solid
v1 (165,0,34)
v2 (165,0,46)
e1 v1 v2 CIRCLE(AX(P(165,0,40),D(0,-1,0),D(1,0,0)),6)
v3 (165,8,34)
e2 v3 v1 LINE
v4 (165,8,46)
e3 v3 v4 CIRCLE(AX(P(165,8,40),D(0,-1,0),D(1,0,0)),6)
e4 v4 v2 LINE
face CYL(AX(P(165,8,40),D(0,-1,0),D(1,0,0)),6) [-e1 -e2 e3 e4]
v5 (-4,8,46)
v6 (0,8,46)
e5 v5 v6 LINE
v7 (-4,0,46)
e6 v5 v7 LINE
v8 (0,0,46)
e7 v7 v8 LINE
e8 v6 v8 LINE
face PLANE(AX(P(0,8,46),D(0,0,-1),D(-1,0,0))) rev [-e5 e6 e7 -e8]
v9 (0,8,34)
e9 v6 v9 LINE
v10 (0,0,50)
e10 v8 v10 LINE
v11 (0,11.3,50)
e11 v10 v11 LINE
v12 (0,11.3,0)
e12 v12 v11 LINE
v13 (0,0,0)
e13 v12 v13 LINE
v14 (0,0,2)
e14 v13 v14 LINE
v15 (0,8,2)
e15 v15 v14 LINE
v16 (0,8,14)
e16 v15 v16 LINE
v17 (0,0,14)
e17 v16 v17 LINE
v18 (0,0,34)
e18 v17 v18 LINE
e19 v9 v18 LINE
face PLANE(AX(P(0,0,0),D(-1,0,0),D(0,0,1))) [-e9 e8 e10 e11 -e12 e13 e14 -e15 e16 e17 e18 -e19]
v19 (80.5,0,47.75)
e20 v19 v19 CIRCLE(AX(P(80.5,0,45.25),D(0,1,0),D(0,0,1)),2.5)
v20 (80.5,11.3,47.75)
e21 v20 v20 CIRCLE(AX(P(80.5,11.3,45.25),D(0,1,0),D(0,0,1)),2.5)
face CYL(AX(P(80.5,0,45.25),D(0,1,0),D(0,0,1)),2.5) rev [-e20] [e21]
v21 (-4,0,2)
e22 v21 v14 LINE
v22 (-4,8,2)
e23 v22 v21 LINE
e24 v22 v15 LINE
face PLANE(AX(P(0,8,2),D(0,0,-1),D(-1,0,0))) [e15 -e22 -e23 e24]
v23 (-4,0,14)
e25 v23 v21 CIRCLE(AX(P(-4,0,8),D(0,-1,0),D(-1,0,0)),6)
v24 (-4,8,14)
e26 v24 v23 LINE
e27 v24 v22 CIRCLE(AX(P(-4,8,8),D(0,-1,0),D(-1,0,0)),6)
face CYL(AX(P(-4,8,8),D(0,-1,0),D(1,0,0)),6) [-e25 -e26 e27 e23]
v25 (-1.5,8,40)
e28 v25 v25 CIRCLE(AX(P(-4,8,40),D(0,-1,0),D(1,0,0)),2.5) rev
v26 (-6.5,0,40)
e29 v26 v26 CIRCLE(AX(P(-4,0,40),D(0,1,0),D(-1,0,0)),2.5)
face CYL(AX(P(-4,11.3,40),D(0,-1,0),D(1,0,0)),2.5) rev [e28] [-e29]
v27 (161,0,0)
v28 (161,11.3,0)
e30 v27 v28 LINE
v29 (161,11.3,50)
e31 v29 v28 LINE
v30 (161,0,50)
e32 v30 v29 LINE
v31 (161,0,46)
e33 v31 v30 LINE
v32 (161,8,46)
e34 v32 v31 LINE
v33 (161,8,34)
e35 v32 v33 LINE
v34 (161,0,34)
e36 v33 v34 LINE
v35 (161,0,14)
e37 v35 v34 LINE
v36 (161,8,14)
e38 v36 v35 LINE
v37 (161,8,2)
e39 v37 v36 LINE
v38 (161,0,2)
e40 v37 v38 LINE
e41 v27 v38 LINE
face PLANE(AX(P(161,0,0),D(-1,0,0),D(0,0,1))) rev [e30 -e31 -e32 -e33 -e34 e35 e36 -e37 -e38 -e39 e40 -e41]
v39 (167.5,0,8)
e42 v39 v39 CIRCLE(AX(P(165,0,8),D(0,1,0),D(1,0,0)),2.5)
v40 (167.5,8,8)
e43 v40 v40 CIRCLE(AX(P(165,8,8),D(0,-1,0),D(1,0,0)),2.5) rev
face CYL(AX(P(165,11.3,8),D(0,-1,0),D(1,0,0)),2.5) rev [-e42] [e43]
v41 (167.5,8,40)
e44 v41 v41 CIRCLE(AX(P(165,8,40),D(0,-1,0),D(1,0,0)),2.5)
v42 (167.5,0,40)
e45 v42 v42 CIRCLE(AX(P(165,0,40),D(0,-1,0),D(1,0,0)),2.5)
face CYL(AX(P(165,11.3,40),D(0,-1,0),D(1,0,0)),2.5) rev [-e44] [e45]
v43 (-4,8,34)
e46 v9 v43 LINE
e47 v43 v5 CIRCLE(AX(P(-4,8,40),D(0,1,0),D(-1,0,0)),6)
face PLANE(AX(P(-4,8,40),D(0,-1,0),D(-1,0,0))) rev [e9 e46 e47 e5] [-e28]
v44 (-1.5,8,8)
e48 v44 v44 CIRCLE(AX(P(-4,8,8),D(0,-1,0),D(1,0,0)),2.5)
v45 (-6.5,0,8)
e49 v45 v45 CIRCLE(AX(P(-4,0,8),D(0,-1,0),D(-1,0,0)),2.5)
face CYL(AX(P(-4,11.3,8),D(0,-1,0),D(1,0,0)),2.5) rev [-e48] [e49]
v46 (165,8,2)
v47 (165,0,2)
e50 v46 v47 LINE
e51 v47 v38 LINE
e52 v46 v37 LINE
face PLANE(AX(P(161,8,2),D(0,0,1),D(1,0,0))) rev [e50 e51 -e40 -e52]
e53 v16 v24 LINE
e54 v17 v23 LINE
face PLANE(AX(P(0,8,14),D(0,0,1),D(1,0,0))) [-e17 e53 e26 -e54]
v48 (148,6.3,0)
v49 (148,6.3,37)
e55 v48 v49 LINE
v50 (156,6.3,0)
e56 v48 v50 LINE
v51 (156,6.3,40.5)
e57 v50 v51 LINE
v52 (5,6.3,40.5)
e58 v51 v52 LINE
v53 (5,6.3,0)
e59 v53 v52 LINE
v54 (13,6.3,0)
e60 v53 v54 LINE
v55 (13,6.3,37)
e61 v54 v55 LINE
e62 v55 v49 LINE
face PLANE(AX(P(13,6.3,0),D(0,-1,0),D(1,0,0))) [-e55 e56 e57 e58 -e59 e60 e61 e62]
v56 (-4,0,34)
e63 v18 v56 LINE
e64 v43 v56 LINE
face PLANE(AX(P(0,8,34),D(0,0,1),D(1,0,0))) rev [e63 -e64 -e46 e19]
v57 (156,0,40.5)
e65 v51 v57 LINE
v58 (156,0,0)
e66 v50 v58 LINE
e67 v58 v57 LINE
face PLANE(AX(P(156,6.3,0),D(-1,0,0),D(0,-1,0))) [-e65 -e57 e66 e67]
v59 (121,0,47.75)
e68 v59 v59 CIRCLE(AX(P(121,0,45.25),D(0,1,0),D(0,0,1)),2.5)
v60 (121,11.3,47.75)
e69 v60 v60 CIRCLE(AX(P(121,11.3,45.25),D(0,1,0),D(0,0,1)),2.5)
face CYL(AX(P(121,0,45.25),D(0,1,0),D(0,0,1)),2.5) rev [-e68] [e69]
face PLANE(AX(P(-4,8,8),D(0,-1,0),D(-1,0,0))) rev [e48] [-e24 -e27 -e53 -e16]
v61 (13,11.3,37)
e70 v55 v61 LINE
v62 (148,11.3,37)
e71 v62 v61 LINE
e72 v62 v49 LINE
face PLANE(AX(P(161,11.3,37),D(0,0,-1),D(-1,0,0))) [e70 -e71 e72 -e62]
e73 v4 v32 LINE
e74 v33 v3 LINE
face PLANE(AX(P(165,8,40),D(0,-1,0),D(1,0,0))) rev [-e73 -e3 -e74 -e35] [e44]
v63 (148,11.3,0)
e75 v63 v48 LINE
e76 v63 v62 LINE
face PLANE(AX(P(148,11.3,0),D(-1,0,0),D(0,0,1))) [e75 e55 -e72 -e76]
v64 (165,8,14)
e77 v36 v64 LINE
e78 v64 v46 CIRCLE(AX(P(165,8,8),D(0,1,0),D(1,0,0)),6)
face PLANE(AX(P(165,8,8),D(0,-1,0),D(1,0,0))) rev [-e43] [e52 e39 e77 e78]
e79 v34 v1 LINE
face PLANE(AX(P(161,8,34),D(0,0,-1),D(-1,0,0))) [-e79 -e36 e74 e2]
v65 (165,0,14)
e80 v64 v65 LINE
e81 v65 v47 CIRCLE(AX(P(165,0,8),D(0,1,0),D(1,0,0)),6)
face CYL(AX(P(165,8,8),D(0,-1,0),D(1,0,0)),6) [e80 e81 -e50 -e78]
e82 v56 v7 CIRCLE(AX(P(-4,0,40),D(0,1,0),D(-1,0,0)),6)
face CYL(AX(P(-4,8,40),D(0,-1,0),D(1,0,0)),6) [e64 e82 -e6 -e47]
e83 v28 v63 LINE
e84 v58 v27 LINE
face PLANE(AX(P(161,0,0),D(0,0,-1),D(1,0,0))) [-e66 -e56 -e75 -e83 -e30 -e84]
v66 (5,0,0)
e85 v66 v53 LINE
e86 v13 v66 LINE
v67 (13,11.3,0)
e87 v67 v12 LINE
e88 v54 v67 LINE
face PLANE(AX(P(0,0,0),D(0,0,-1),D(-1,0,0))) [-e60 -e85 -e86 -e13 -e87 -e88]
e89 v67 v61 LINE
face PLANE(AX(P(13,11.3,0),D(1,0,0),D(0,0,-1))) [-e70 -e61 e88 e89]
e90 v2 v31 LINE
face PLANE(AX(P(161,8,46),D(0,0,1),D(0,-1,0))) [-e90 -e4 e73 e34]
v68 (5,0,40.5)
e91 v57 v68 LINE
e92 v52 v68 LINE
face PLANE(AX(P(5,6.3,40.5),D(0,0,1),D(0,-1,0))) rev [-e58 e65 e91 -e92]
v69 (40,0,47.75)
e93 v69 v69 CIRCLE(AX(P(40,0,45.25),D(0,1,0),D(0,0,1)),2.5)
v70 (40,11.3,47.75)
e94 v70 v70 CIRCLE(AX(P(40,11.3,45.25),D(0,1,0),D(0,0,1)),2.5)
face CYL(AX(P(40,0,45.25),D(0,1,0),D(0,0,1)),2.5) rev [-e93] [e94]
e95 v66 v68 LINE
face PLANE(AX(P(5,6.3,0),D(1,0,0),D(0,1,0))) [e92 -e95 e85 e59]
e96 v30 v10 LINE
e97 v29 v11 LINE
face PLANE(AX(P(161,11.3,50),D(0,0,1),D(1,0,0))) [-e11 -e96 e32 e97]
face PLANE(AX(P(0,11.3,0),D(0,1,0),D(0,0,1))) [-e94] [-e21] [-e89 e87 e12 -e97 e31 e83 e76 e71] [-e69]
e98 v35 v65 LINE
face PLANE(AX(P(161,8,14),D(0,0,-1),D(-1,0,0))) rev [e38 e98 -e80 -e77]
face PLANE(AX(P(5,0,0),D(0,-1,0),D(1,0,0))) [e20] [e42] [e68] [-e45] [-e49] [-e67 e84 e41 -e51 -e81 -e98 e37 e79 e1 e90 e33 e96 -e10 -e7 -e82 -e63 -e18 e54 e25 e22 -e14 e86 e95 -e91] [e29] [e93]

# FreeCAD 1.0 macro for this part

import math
import FreeCAD as App
import Part
import Sketcher

V = App.Vector
Q = App.Units.Quantity

doc = App.newDocument("Part")
body = doc.addObject("PartDesign::Body", "Body")

# Sketch on XY plane
sketch1 = body.newObject("Sketcher::SketchObject", "Sketch")
sketch1.AttachmentSupport = (doc.getObject("XY_Plane"), [""])
sketch1.MapMode = "FlatFace"
sketch1.addGeometry(Part.LineSegment(V(0, 11.3, 0), V(0, 0, 0)), False)
sketch1.addGeometry(Part.LineSegment(V(0, 0, 0), V(5, 0, 0)), False)
sketch1.addGeometry(Part.LineSegment(V(5, 0, 0), V(5, 6.3, 0)), False)
sketch1.addGeometry(Part.LineSegment(V(5, 6.3, 0), V(13, 6.3, 0)), False)
sketch1.addGeometry(Part.LineSegment(V(13, 6.3, 0), V(13, 11.3, 0)), False)
sketch1.addGeometry(Part.LineSegment(V(13, 11.3, 0), V(0, 11.3, 0)), False)
sketch1.addConstraint(Sketcher.Constraint("Coincident", 0, 2, 1, 1))
sketch1.addConstraint(Sketcher.Constraint("Coincident", 1, 2, 2, 1))
sketch1.addConstraint(Sketcher.Constraint("Coincident", 2, 2, 3, 1))
sketch1.addConstraint(Sketcher.Constraint("Coincident", 3, 2, 4, 1))
sketch1.addConstraint(Sketcher.Constraint("Coincident", 4, 2, 5, 1))
sketch1.addConstraint(Sketcher.Constraint("Coincident", 5, 2, 0, 1))
sketch1.addConstraint(Sketcher.Constraint("Vertical", 0))
sketch1.addConstraint(Sketcher.Constraint("Horizontal", 1))
sketch1.addConstraint(Sketcher.Constraint("Vertical", 2))
sketch1.addConstraint(Sketcher.Constraint("Horizontal", 3))
sketch1.addConstraint(Sketcher.Constraint("Vertical", 4))
sketch1.addConstraint(Sketcher.Constraint("Horizontal", 5))
sketch1.addConstraint(Sketcher.Constraint("Coincident", 0, 2, -1, 1))
sketch1.addConstraint(Sketcher.Constraint("Equal", 1, 4))
sketch1.addConstraint(Sketcher.Constraint("DistanceX", 1, 1, 1, 2, Q("5 mm")))
sketch1.addConstraint(Sketcher.Constraint("DistanceX", 3, 1, 3, 2, Q("8 mm")))
sketch1.addConstraint(Sketcher.Constraint("DistanceY", 0, 2, 0, 1, Q("11.3 mm")))

# Sketch on XZ plane
sketch2 = body.newObject("Sketcher::SketchObject", "Sketch001")
sketch2.AttachmentSupport = (doc.getObject("XZ_Plane"), [""])
sketch2.MapMode = "FlatFace"
sketch2.addGeometry(Part.LineSegment(V(0, 0, 0), V(0, 37, 0)), False)
sketch2.addConstraint(Sketcher.Constraint("Vertical", 0))
sketch2.addConstraint(Sketcher.Constraint("Coincident", 0, 1, -1, 1))
sketch2.addConstraint(Sketcher.Constraint("DistanceY", 0, 1, 0, 2, Q("37 mm")))
doc.recompute()

additivepipe = body.newObject("PartDesign::AdditivePipe", "AdditivePipe")
additivepipe.Profile = sketch1
additivepipe.Spine = (sketch2, ["Edge1"])

# Sketch on YZ plane
sketch3 = body.newObject("Sketcher::SketchObject", "Sketch002")
sketch3.AttachmentSupport = (doc.getObject("YZ_Plane"), [""])
sketch3.MapMode = "FlatFace"
sketch3.addGeometry(Part.LineSegment(V(11.3, 37, 0), V(0, 37, 0)), False)
sketch3.addGeometry(Part.LineSegment(V(0, 37, 0), V(0, 50, 0)), False)
sketch3.addGeometry(Part.LineSegment(V(0, 50, 0), V(11.3, 50, 0)), False)
sketch3.addGeometry(Part.LineSegment(V(11.3, 50, 0), V(11.3, 37, 0)), False)
sketch3.addConstraint(Sketcher.Constraint("Coincident", 0, 2, 1, 1))
sketch3.addConstraint(Sketcher.Constraint("Coincident", 1, 2, 2, 1))
sketch3.addConstraint(Sketcher.Constraint("Coincident", 2, 2, 3, 1))
sketch3.addConstraint(Sketcher.Constraint("Coincident", 3, 2, 0, 1))
sketch3.addConstraint(Sketcher.Constraint("Horizontal", 0))
sketch3.addConstraint(Sketcher.Constraint("Vertical", 1))
sketch3.addConstraint(Sketcher.Constraint("Horizontal", 2))
sketch3.addConstraint(Sketcher.Constraint("Vertical", 3))
sketch3.addConstraint(Sketcher.Constraint("PointOnObject", 0, 2, -2))
sketch3.addConstraint(Sketcher.Constraint("DistanceY", 1, 1, 1, 2, Q("13 mm")))
sketch3.addConstraint(Sketcher.Constraint("DistanceX", 0, 2, 0, 1, Q("11.3 mm")))
sketch3.addConstraint(Sketcher.Constraint("DistanceY", -1, 1, 0, 2, Q("37 mm")))
pad1 = body.newObject("PartDesign::Pad", "Pad")
pad1.Profile = sketch3
pad1.Length = 161
doc.recompute()

datumplane = body.newObject("PartDesign::Plane", "DatumPlane")
datumplane.AttachmentSupport = (doc.getObject("YZ_Plane"), [""])
datumplane.MapMode = "FlatFace"
datumplane.AttachmentOffset = App.Placement(V(0, 0, 80.5), App.Rotation())
mirrored = body.newObject("PartDesign::Mirrored", "Mirrored")
mirrored.Originals = [additivepipe]
mirrored.MirrorPlane = (datumplane, [""])
body.Tip = mirrored

# Sketch on XZ plane
sketch4 = body.newObject("Sketcher::SketchObject", "Sketch003")
sketch4.AttachmentSupport = (doc.getObject("XZ_Plane"), [""])
sketch4.MapMode = "FlatFace"
sketch4.addGeometry(Part.LineSegment(V(5, 40.5, 0), V(5, 37, 0)), False)
sketch4.addGeometry(Part.LineSegment(V(5, 37, 0), V(156, 37, 0)), False)
sketch4.addGeometry(Part.LineSegment(V(156, 37, 0), V(156, 40.5, 0)), False)
sketch4.addGeometry(Part.LineSegment(V(156, 40.5, 0), V(5, 40.5, 0)), False)
sketch4.addConstraint(Sketcher.Constraint("Coincident", 0, 2, 1, 1))
sketch4.addConstraint(Sketcher.Constraint("Coincident", 1, 2, 2, 1))
sketch4.addConstraint(Sketcher.Constraint("Coincident", 2, 2, 3, 1))
sketch4.addConstraint(Sketcher.Constraint("Coincident", 3, 2, 0, 1))
sketch4.addConstraint(Sketcher.Constraint("Vertical", 0))
sketch4.addConstraint(Sketcher.Constraint("Horizontal", 1))
sketch4.addConstraint(Sketcher.Constraint("Vertical", 2))
sketch4.addConstraint(Sketcher.Constraint("Horizontal", 3))
sketch4.addConstraint(Sketcher.Constraint("DistanceX", 1, 1, 1, 2, Q("151 mm")))
sketch4.addConstraint(Sketcher.Constraint("DistanceY", 0, 2, 0, 1, Q("3.5 mm")))
sketch4.addConstraint(Sketcher.Constraint("DistanceX", -1, 1, 0, 2, Q("5 mm")))
sketch4.addConstraint(Sketcher.Constraint("DistanceY", -1, 1, 0, 2, Q("37 mm")))
pocket1 = body.newObject("PartDesign::Pocket", "Pocket")
pocket1.Profile = sketch4
pocket1.Length = 6.3

# Sketch on XZ plane
sketch5 = body.newObject("Sketcher::SketchObject", "Sketch004")
sketch5.AttachmentSupport = (doc.getObject("XZ_Plane"), [""])
sketch5.MapMode = "FlatFace"
sketch5.addGeometry(Part.LineSegment(V(165, 46, 0), V(161, 46, 0)), False)
sketch5.addGeometry(Part.LineSegment(V(161, 46, 0), V(161, 34, 0)), False)
sketch5.addGeometry(Part.LineSegment(V(161, 34, 0), V(165, 34, 0)), False)
sketch5.addGeometry(Part.ArcOfCircle(Part.Circle(V(165, 40, 0), V(0, 0, 1), 6), math.radians(-90), math.radians(90)), False)
sketch5.addConstraint(Sketcher.Constraint("Coincident", 0, 2, 1, 1))
sketch5.addConstraint(Sketcher.Constraint("Coincident", 1, 2, 2, 1))
sketch5.addConstraint(Sketcher.Constraint("Tangent", 2, 2, 3, 1))
sketch5.addConstraint(Sketcher.Constraint("Tangent", 3, 2, 0, 1))
sketch5.addConstraint(Sketcher.Constraint("Horizontal", 0))
sketch5.addConstraint(Sketcher.Constraint("Vertical", 1))
sketch5.addConstraint(Sketcher.Constraint("Horizontal", 2))
sketch5.addConstraint(Sketcher.Constraint("Radius", 3, Q("6 mm")))
sketch5.addConstraint(Sketcher.Constraint("DistanceX", 0, 2, 0, 1, Q("4 mm")))
sketch5.addConstraint(Sketcher.Constraint("DistanceX", -1, 1, 3, 3, Q("165 mm")))
sketch5.addConstraint(Sketcher.Constraint("DistanceY", -1, 1, 3, 3, Q("40 mm")))
pad2 = body.newObject("PartDesign::Pad", "Pad001")
pad2.Profile = sketch5
pad2.Length = 8
pad2.Reversed = True

# Sketch on XZ plane
sketch6 = body.newObject("Sketcher::SketchObject", "Sketch005")
sketch6.AttachmentSupport = (doc.getObject("XZ_Plane"), [""])
sketch6.MapMode = "FlatFace"
sketch6.addGeometry(Part.Circle(V(165, 40, 0), V(0, 0, 1), 2.5), False)
sketch6.addConstraint(Sketcher.Constraint("Diameter", 0, Q("5 mm")))
sketch6.addConstraint(Sketcher.Constraint("DistanceX", -1, 1, 0, 3, Q("165 mm")))
sketch6.addConstraint(Sketcher.Constraint("DistanceY", -1, 1, 0, 3, Q("40 mm")))
pocket2 = body.newObject("PartDesign::Pocket", "Pocket001")
pocket2.Profile = sketch6
pocket2.Type = "ThroughAll"
doc.recompute()

datumplane2 = body.newObject("PartDesign::Plane", "DatumPlane001")
datumplane2.AttachmentSupport = (doc.getObject("XY_Plane"), [""])
datumplane2.MapMode = "FlatFace"
datumplane2.AttachmentOffset = App.Placement(V(0, 0, 24), App.Rotation())
mirrored2 = body.newObject("PartDesign::Mirrored", "Mirrored001")
mirrored2.Originals = [pad2, pocket2]
mirrored2.MirrorPlane = (datumplane2, [""])
body.Tip = mirrored2
doc.recompute()

datumplane3 = body.newObject("PartDesign::Plane", "DatumPlane002")
datumplane3.AttachmentSupport = (doc.getObject("YZ_Plane"), [""])
datumplane3.MapMode = "FlatFace"
datumplane3.AttachmentOffset = App.Placement(V(0, 0, 80.5), App.Rotation())
mirrored3 = body.newObject("PartDesign::Mirrored", "Mirrored002")
mirrored3.Originals = [pad2, pocket2]
mirrored3.MirrorPlane = (datumplane3, [""])
body.Tip = mirrored3

# Sketch on XZ plane
sketch7 = body.newObject("Sketcher::SketchObject", "Sketch006")
sketch7.AttachmentSupport = (doc.getObject("XZ_Plane"), [""])
sketch7.MapMode = "FlatFace"
sketch7.addGeometry(Part.LineSegment(V(-4, 2, 0), V(0, 2, 0)), False)
sketch7.addGeometry(Part.LineSegment(V(0, 2, 0), V(0, 14, 0)), False)
sketch7.addGeometry(Part.LineSegment(V(0, 14, 0), V(-4, 14, 0)), False)
sketch7.addGeometry(Part.ArcOfCircle(Part.Circle(V(-4, 8, 0), V(0, 0, 1), 6), math.radians(90), math.radians(270)), False)
sketch7.addConstraint(Sketcher.Constraint("Coincident", 0, 2, 1, 1))
sketch7.addConstraint(Sketcher.Constraint("Coincident", 1, 2, 2, 1))
sketch7.addConstraint(Sketcher.Constraint("Tangent", 2, 2, 3, 1))
sketch7.addConstraint(Sketcher.Constraint("Tangent", 3, 2, 0, 1))
sketch7.addConstraint(Sketcher.Constraint("Horizontal", 0))
sketch7.addConstraint(Sketcher.Constraint("Vertical", 1))
sketch7.addConstraint(Sketcher.Constraint("Horizontal", 2))
sketch7.addConstraint(Sketcher.Constraint("PointOnObject", 0, 2, -2))
sketch7.addConstraint(Sketcher.Constraint("Radius", 3, Q("6 mm")))
sketch7.addConstraint(Sketcher.Constraint("DistanceX", 0, 1, 0, 2, Q("4 mm")))
sketch7.addConstraint(Sketcher.Constraint("DistanceY", -1, 1, 3, 3, Q("8 mm")))
pad3 = body.newObject("PartDesign::Pad", "Pad002")
pad3.Profile = sketch7
pad3.Length = 8
pad3.Reversed = True

# Sketch on XZ plane
sketch8 = body.newObject("Sketcher::SketchObject", "Sketch007")
sketch8.AttachmentSupport = (doc.getObject("XZ_Plane"), [""])
sketch8.MapMode = "FlatFace"
sketch8.addGeometry(Part.Circle(V(-4, 8, 0), V(0, 0, 1), 2.5), False)
sketch8.addConstraint(Sketcher.Constraint("Diameter", 0, Q("5 mm")))
sketch8.addConstraint(Sketcher.Constraint("DistanceX", 0, 3, -1, 1, Q("4 mm")))
sketch8.addConstraint(Sketcher.Constraint("DistanceY", -1, 1, 0, 3, Q("8 mm")))
pocket3 = body.newObject("PartDesign::Pocket", "Pocket002")
pocket3.Profile = sketch8
pocket3.Type = "ThroughAll"

# Sketch on XZ plane
sketch9 = body.newObject("Sketcher::SketchObject", "Sketch008")
sketch9.AttachmentSupport = (doc.getObject("XZ_Plane"), [""])
sketch9.MapMode = "FlatFace"
sketch9.AttachmentOffset = App.Placement(V(0, 0, -11.3), App.Rotation())
sketch9.addGeometry(Part.Circle(V(121, 45.25, 0), V(0, 0, 1), 2.5), False)
sketch9.addConstraint(Sketcher.Constraint("Diameter", 0, Q("5 mm")))
sketch9.addConstraint(Sketcher.Constraint("DistanceX", -1, 1, 0, 3, Q("121 mm")))
sketch9.addConstraint(Sketcher.Constraint("DistanceY", -1, 1, 0, 3, Q("45.25 mm")))
pocket4 = body.newObject("PartDesign::Pocket", "Pocket003")
pocket4.Profile = sketch9
pocket4.Type = "ThroughAll"
pocket4.Reversed = True
doc.recompute()

linearpattern = body.newObject("PartDesign::LinearPattern", "LinearPattern")
linearpattern.Originals = [pocket4]
linearpattern.Direction = (doc.getObject("X_Axis"), [""])
linearpattern.Mode = "offset"
linearpattern.Offset = 40.5
linearpattern.Occurrences = 3
linearpattern.Reversed = True
body.Tip = linearpattern

doc.recompute()
